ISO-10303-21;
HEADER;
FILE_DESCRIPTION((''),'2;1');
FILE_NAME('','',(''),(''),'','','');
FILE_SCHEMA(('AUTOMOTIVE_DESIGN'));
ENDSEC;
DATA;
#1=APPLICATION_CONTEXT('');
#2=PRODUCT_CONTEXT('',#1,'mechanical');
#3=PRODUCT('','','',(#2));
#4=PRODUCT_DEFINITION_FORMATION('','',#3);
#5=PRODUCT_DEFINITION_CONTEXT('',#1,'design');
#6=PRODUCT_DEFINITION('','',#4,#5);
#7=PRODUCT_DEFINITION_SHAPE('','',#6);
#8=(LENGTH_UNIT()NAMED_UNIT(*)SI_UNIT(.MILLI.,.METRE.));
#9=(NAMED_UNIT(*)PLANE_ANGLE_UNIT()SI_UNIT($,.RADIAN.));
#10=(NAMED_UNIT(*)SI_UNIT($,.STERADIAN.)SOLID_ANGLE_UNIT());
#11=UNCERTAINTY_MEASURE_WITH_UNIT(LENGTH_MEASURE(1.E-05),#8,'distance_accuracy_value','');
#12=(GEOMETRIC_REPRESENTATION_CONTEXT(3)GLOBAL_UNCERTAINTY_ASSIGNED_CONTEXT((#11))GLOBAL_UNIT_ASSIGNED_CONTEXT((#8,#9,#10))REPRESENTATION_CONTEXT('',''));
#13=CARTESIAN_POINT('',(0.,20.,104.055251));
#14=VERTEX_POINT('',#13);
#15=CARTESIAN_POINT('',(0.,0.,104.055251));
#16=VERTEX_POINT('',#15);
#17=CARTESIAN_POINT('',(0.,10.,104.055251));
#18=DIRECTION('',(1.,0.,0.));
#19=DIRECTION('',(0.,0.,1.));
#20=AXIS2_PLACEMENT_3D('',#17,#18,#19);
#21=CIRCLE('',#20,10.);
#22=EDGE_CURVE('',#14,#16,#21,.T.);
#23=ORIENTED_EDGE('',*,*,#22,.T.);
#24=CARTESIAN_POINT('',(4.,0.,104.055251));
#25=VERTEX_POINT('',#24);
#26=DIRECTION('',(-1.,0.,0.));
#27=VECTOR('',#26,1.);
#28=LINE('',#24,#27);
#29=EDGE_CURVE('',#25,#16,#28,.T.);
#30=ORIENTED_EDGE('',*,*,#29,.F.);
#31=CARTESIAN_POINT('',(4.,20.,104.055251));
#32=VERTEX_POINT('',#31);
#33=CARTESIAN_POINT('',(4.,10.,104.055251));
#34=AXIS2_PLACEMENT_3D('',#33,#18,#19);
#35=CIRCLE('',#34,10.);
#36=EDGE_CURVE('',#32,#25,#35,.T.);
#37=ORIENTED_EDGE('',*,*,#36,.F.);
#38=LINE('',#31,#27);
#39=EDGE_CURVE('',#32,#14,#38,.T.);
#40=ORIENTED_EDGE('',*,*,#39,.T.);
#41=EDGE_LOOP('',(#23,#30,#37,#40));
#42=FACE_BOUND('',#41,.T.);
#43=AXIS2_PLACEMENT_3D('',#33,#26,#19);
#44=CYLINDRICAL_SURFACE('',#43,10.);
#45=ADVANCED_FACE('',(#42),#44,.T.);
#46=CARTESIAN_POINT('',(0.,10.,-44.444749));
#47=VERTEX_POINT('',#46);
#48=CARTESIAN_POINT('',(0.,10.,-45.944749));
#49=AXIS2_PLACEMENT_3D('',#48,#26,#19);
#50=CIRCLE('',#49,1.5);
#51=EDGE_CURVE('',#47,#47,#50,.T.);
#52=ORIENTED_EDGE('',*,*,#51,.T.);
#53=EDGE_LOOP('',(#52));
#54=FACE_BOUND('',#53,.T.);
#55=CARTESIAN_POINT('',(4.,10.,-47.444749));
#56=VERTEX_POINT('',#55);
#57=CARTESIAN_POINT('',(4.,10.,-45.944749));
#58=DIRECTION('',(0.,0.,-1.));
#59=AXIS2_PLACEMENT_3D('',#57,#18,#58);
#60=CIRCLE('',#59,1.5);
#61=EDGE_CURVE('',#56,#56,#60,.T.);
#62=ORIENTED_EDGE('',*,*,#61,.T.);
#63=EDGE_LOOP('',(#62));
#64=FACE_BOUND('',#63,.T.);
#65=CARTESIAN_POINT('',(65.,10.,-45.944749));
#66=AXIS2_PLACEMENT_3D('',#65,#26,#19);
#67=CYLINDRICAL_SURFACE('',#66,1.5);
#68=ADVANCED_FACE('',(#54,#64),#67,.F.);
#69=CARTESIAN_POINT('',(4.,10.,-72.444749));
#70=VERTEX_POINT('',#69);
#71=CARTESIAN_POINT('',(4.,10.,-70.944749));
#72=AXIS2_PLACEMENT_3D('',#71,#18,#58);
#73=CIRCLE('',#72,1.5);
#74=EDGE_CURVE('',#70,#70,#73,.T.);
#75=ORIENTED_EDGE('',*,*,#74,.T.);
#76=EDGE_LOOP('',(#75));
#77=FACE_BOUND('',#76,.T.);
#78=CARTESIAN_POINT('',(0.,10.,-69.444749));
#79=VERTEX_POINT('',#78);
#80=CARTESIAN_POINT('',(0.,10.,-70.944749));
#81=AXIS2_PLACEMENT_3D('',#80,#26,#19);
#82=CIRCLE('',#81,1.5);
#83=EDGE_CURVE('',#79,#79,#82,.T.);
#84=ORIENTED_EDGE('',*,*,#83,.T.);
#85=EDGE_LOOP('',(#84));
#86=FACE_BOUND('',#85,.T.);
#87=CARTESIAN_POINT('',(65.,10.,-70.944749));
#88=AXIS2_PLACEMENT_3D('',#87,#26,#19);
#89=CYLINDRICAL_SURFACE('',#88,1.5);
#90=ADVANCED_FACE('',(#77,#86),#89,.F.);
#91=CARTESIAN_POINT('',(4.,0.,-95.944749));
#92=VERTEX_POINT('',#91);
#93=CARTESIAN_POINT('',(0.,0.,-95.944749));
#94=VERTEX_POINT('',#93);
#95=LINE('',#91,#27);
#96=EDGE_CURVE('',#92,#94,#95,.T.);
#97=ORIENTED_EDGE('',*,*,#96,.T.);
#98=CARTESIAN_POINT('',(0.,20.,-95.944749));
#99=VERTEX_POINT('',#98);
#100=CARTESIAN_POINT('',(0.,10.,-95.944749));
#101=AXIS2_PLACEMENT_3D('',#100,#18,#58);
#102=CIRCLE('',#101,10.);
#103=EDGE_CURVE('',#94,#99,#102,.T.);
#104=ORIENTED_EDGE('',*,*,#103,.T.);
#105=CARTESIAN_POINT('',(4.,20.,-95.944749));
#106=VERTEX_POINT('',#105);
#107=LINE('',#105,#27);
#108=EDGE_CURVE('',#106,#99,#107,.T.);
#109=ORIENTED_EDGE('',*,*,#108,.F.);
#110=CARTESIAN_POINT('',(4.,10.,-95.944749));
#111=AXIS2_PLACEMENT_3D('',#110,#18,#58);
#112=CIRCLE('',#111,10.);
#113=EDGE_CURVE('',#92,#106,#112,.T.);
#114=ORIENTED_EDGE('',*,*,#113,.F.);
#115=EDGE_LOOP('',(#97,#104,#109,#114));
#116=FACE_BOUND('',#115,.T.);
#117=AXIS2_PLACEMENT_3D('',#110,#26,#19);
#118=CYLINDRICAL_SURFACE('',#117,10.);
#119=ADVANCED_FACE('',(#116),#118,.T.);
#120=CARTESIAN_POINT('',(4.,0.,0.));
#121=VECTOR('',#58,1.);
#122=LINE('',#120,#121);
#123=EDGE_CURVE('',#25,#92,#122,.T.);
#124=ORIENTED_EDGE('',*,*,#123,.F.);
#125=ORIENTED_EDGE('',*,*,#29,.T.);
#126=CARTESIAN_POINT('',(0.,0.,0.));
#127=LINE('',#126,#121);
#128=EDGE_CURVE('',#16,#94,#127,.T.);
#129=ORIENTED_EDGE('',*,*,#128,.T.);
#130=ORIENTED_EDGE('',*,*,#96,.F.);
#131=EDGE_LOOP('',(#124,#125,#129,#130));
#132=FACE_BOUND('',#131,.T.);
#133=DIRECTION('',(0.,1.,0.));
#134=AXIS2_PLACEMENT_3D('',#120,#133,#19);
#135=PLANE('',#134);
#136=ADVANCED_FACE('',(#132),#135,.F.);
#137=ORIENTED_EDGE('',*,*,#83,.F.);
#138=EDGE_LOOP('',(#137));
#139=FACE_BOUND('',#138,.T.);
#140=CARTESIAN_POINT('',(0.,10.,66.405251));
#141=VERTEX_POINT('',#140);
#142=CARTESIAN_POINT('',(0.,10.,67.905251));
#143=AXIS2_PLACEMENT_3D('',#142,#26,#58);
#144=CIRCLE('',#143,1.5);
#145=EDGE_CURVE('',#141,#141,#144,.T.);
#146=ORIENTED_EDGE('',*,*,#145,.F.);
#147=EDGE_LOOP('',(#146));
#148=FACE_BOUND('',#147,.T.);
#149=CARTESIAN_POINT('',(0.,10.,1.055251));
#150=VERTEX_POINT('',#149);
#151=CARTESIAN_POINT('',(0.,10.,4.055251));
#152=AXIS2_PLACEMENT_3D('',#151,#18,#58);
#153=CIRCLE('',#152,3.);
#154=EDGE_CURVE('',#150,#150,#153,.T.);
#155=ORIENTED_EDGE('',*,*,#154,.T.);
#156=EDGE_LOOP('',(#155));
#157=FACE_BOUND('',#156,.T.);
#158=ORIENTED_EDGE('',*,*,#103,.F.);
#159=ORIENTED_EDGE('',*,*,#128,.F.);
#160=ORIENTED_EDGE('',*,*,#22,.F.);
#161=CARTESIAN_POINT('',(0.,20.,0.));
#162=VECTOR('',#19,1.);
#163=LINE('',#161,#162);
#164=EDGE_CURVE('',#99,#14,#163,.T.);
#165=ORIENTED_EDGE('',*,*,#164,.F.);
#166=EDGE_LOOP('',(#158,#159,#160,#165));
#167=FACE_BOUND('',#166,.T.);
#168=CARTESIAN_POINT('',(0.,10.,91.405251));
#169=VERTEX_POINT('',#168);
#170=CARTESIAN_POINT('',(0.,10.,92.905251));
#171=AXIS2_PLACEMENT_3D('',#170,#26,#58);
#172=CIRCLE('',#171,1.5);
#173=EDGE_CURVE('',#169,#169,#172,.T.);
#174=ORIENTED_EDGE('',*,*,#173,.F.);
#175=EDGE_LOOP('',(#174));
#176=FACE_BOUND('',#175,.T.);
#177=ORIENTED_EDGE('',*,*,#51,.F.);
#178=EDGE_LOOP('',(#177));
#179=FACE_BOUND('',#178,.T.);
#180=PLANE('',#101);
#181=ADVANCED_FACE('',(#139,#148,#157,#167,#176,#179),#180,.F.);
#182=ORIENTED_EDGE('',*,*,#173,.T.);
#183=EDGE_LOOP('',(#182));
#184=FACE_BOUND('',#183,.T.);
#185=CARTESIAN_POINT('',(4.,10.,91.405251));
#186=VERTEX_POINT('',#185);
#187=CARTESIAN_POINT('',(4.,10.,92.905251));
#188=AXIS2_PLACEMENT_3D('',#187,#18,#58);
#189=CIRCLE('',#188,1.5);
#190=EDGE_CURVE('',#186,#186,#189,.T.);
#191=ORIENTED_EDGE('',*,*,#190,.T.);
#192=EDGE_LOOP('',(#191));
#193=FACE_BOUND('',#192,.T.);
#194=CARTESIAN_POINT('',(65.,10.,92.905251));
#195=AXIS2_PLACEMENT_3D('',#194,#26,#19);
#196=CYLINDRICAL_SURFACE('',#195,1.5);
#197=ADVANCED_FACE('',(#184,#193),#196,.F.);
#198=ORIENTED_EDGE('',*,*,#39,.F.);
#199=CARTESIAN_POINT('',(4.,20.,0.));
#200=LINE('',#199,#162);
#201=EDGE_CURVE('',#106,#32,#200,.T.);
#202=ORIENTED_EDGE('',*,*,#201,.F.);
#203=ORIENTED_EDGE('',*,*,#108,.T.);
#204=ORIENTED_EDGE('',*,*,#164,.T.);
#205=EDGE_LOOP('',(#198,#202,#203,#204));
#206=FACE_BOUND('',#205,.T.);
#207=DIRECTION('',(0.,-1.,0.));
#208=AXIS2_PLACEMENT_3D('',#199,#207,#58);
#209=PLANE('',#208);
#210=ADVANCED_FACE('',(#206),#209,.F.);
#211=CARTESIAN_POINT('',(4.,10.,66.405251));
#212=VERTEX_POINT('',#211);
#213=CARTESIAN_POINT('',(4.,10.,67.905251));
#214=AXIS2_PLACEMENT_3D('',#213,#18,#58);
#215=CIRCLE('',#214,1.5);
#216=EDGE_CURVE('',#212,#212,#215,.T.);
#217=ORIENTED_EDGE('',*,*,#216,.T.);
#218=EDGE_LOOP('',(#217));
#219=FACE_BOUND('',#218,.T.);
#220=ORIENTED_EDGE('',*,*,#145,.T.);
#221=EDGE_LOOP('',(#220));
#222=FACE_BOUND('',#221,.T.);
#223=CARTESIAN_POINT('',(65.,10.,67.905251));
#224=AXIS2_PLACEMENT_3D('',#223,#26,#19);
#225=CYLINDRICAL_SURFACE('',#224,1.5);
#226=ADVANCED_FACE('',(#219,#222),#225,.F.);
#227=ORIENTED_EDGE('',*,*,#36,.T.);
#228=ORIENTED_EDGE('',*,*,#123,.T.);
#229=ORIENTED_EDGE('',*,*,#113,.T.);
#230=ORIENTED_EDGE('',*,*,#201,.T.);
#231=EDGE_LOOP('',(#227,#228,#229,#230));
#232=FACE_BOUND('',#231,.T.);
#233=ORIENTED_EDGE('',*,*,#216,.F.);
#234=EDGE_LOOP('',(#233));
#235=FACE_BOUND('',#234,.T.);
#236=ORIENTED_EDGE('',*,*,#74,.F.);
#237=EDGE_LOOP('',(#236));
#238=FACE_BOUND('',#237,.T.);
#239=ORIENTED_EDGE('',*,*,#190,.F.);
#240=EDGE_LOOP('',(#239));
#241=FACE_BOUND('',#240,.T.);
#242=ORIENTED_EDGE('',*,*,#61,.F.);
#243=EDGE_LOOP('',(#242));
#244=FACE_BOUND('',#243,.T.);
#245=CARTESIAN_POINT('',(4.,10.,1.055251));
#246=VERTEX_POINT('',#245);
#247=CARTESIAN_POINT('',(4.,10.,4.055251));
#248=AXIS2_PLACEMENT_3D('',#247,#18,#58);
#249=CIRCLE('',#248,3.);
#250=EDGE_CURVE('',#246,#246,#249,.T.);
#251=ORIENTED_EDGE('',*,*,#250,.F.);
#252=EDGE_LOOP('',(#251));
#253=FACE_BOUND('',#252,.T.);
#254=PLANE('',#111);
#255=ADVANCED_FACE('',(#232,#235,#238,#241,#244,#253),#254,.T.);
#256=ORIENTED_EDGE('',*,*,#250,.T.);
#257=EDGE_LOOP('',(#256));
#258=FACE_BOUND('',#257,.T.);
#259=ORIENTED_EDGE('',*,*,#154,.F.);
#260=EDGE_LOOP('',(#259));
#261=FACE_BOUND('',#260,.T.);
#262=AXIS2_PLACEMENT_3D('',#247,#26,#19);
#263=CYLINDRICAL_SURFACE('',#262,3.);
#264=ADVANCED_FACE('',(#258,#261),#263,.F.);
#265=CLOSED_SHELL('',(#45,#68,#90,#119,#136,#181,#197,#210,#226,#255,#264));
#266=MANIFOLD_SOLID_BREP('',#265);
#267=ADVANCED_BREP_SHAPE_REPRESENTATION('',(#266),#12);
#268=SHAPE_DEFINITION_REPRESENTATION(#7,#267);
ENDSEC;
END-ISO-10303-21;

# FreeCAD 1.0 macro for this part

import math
import FreeCAD as App
import Part
import Sketcher

V = App.Vector
Q = App.Units.Quantity

doc = App.newDocument("Part")
params = doc.addObject("Spreadsheet::Sheet", "Params")
for row, (alias, value) in enumerate([
    ("sketch1_diameter", "6 mm"),
    ("sketch1_radius", "10 mm"),
    ("sketch1_height", "200 mm"),
    ("pad1_length", "4 mm"),
    ("sketch2_diameter", "3 mm"),
    ("pocket1_length", "65 mm"),
], start=1):
    params.set(f"A{row}", alias)
    params.set(f"B{row}", "=" + value)
    params.setAlias(f"B{row}", alias)

body = doc.addObject("PartDesign::Body", "Body")

sketch1 = doc.addObject("Sketcher::SketchObject", "Sketch")
body.addObject(sketch1)
sketch1.AttachmentSupport = (doc.YZ_Plane, [""])
sketch1.MapMode = "FlatFace"
sketch1.addGeometry(Part.ArcOfCircle(Part.Circle(V(10, 104.055251, 0), V(0, 0, 1), 10), math.radians(0), math.radians(180)), False)
sketch1.addGeometry(Part.LineSegment(V(0, 104.055251, 0), V(0, -95.944749, 0)), False)
sketch1.addGeometry(Part.ArcOfCircle(Part.Circle(V(10, -95.944749, 0), V(0, 0, 1), 10), math.radians(180), math.radians(360)), False)
sketch1.addGeometry(Part.LineSegment(V(20, -95.944749, 0), V(20, 104.055251, 0)), False)
sketch1.addGeometry(Part.Circle(V(10, 4.055251, 0), V(0, 0, 1), 3), False)
sketch1.addConstraint(Sketcher.Constraint("Tangent", 0, 2, 1, 1))
sketch1.addConstraint(Sketcher.Constraint("Tangent", 1, 2, 2, 1))
sketch1.addConstraint(Sketcher.Constraint("Tangent", 2, 2, 3, 1))
sketch1.addConstraint(Sketcher.Constraint("Tangent", 3, 2, 0, 1))
sketch1.addConstraint(Sketcher.Constraint("Vertical", 1))
sketch1.addConstraint(Sketcher.Constraint("Vertical", 3))
sketch1.addConstraint(Sketcher.Constraint("PointOnObject", 0, 2, -2))
sketch1.addConstraint(Sketcher.Constraint("Vertical", 2, 3, 4, 3))
sketch1.addConstraint(Sketcher.Constraint("Diameter", 4, Q("6 mm")))
sketch1.addConstraint(Sketcher.Constraint("Radius", 0, Q("10 mm")))
sketch1.addConstraint(Sketcher.Constraint("DistanceY", 1, 2, 1, 1, Q("200 mm")))
sketch1.addConstraint(Sketcher.Constraint("DistanceY", 4, 3, 0, 3, Q("100 mm")))
sketch1.addConstraint(Sketcher.Constraint("DistanceY", -1, 1, 0, 3, Q("104.055251 mm")))
sketch1.setExpression("Constraints[8]", "Params.sketch1_diameter")
sketch1.setExpression("Constraints[9]", "Params.sketch1_radius")
sketch1.setExpression("Constraints[10]", "Params.sketch1_height")
pad1 = doc.addObject("PartDesign::Pad", "Pad")
body.addObject(pad1)
pad1.Profile = sketch1
pad1.setExpression("Length", "Params.pad1_length")

sketch2 = doc.addObject("Sketcher::SketchObject", "Sketch001")
body.addObject(sketch2)
sketch2.AttachmentSupport = (doc.YZ_Plane, [""])
sketch2.MapMode = "FlatFace"
sketch2.addGeometry(Part.Circle(V(10, -70.944749, 0), V(0, 0, 1), 1.5), False)
sketch2.addGeometry(Part.Circle(V(10, -45.944749, 0), V(0, 0, 1), 1.5), False)
sketch2.addGeometry(Part.Circle(V(10, 67.905251, 0), V(0, 0, 1), 1.5), False)
sketch2.addGeometry(Part.Circle(V(10, 92.905251, 0), V(0, 0, 1), 1.5), False)
sketch2.addConstraint(Sketcher.Constraint("Equal", 0, 1))
sketch2.addConstraint(Sketcher.Constraint("Equal", 1, 2))
sketch2.addConstraint(Sketcher.Constraint("Equal", 2, 3))
sketch2.addConstraint(Sketcher.Constraint("Vertical", 0, 3, 1, 3))
sketch2.addConstraint(Sketcher.Constraint("Vertical", 1, 3, 2, 3))
sketch2.addConstraint(Sketcher.Constraint("Vertical", 2, 3, 3, 3))
sketch2.addConstraint(Sketcher.Constraint("Diameter", 0, Q("3 mm")))
sketch2.addConstraint(Sketcher.Constraint("DistanceX", -1, 1, 0, 3, Q("10 mm")))
sketch2.addConstraint(Sketcher.Constraint("DistanceY", 0, 3, 1, 3, Q("25 mm")))
sketch2.addConstraint(Sketcher.Constraint("DistanceY", 2, 3, 3, 3, Q("25 mm")))
sketch2.addConstraint(Sketcher.Constraint("DistanceY", 1, 3, 2, 3, Q("113.85 mm")))
sketch2.addConstraint(Sketcher.Constraint("DistanceY", 0, 3, -1, 1, Q("70.944749 mm")))
sketch2.setExpression("Constraints[6]", "Params.sketch2_diameter")
pocket1 = doc.addObject("PartDesign::Pocket", "Pocket")
body.addObject(pocket1)
pocket1.Profile = sketch2
pocket1.setExpression("Length", "Params.pocket1_length")
pocket1.Reversed = True

doc.recompute()
